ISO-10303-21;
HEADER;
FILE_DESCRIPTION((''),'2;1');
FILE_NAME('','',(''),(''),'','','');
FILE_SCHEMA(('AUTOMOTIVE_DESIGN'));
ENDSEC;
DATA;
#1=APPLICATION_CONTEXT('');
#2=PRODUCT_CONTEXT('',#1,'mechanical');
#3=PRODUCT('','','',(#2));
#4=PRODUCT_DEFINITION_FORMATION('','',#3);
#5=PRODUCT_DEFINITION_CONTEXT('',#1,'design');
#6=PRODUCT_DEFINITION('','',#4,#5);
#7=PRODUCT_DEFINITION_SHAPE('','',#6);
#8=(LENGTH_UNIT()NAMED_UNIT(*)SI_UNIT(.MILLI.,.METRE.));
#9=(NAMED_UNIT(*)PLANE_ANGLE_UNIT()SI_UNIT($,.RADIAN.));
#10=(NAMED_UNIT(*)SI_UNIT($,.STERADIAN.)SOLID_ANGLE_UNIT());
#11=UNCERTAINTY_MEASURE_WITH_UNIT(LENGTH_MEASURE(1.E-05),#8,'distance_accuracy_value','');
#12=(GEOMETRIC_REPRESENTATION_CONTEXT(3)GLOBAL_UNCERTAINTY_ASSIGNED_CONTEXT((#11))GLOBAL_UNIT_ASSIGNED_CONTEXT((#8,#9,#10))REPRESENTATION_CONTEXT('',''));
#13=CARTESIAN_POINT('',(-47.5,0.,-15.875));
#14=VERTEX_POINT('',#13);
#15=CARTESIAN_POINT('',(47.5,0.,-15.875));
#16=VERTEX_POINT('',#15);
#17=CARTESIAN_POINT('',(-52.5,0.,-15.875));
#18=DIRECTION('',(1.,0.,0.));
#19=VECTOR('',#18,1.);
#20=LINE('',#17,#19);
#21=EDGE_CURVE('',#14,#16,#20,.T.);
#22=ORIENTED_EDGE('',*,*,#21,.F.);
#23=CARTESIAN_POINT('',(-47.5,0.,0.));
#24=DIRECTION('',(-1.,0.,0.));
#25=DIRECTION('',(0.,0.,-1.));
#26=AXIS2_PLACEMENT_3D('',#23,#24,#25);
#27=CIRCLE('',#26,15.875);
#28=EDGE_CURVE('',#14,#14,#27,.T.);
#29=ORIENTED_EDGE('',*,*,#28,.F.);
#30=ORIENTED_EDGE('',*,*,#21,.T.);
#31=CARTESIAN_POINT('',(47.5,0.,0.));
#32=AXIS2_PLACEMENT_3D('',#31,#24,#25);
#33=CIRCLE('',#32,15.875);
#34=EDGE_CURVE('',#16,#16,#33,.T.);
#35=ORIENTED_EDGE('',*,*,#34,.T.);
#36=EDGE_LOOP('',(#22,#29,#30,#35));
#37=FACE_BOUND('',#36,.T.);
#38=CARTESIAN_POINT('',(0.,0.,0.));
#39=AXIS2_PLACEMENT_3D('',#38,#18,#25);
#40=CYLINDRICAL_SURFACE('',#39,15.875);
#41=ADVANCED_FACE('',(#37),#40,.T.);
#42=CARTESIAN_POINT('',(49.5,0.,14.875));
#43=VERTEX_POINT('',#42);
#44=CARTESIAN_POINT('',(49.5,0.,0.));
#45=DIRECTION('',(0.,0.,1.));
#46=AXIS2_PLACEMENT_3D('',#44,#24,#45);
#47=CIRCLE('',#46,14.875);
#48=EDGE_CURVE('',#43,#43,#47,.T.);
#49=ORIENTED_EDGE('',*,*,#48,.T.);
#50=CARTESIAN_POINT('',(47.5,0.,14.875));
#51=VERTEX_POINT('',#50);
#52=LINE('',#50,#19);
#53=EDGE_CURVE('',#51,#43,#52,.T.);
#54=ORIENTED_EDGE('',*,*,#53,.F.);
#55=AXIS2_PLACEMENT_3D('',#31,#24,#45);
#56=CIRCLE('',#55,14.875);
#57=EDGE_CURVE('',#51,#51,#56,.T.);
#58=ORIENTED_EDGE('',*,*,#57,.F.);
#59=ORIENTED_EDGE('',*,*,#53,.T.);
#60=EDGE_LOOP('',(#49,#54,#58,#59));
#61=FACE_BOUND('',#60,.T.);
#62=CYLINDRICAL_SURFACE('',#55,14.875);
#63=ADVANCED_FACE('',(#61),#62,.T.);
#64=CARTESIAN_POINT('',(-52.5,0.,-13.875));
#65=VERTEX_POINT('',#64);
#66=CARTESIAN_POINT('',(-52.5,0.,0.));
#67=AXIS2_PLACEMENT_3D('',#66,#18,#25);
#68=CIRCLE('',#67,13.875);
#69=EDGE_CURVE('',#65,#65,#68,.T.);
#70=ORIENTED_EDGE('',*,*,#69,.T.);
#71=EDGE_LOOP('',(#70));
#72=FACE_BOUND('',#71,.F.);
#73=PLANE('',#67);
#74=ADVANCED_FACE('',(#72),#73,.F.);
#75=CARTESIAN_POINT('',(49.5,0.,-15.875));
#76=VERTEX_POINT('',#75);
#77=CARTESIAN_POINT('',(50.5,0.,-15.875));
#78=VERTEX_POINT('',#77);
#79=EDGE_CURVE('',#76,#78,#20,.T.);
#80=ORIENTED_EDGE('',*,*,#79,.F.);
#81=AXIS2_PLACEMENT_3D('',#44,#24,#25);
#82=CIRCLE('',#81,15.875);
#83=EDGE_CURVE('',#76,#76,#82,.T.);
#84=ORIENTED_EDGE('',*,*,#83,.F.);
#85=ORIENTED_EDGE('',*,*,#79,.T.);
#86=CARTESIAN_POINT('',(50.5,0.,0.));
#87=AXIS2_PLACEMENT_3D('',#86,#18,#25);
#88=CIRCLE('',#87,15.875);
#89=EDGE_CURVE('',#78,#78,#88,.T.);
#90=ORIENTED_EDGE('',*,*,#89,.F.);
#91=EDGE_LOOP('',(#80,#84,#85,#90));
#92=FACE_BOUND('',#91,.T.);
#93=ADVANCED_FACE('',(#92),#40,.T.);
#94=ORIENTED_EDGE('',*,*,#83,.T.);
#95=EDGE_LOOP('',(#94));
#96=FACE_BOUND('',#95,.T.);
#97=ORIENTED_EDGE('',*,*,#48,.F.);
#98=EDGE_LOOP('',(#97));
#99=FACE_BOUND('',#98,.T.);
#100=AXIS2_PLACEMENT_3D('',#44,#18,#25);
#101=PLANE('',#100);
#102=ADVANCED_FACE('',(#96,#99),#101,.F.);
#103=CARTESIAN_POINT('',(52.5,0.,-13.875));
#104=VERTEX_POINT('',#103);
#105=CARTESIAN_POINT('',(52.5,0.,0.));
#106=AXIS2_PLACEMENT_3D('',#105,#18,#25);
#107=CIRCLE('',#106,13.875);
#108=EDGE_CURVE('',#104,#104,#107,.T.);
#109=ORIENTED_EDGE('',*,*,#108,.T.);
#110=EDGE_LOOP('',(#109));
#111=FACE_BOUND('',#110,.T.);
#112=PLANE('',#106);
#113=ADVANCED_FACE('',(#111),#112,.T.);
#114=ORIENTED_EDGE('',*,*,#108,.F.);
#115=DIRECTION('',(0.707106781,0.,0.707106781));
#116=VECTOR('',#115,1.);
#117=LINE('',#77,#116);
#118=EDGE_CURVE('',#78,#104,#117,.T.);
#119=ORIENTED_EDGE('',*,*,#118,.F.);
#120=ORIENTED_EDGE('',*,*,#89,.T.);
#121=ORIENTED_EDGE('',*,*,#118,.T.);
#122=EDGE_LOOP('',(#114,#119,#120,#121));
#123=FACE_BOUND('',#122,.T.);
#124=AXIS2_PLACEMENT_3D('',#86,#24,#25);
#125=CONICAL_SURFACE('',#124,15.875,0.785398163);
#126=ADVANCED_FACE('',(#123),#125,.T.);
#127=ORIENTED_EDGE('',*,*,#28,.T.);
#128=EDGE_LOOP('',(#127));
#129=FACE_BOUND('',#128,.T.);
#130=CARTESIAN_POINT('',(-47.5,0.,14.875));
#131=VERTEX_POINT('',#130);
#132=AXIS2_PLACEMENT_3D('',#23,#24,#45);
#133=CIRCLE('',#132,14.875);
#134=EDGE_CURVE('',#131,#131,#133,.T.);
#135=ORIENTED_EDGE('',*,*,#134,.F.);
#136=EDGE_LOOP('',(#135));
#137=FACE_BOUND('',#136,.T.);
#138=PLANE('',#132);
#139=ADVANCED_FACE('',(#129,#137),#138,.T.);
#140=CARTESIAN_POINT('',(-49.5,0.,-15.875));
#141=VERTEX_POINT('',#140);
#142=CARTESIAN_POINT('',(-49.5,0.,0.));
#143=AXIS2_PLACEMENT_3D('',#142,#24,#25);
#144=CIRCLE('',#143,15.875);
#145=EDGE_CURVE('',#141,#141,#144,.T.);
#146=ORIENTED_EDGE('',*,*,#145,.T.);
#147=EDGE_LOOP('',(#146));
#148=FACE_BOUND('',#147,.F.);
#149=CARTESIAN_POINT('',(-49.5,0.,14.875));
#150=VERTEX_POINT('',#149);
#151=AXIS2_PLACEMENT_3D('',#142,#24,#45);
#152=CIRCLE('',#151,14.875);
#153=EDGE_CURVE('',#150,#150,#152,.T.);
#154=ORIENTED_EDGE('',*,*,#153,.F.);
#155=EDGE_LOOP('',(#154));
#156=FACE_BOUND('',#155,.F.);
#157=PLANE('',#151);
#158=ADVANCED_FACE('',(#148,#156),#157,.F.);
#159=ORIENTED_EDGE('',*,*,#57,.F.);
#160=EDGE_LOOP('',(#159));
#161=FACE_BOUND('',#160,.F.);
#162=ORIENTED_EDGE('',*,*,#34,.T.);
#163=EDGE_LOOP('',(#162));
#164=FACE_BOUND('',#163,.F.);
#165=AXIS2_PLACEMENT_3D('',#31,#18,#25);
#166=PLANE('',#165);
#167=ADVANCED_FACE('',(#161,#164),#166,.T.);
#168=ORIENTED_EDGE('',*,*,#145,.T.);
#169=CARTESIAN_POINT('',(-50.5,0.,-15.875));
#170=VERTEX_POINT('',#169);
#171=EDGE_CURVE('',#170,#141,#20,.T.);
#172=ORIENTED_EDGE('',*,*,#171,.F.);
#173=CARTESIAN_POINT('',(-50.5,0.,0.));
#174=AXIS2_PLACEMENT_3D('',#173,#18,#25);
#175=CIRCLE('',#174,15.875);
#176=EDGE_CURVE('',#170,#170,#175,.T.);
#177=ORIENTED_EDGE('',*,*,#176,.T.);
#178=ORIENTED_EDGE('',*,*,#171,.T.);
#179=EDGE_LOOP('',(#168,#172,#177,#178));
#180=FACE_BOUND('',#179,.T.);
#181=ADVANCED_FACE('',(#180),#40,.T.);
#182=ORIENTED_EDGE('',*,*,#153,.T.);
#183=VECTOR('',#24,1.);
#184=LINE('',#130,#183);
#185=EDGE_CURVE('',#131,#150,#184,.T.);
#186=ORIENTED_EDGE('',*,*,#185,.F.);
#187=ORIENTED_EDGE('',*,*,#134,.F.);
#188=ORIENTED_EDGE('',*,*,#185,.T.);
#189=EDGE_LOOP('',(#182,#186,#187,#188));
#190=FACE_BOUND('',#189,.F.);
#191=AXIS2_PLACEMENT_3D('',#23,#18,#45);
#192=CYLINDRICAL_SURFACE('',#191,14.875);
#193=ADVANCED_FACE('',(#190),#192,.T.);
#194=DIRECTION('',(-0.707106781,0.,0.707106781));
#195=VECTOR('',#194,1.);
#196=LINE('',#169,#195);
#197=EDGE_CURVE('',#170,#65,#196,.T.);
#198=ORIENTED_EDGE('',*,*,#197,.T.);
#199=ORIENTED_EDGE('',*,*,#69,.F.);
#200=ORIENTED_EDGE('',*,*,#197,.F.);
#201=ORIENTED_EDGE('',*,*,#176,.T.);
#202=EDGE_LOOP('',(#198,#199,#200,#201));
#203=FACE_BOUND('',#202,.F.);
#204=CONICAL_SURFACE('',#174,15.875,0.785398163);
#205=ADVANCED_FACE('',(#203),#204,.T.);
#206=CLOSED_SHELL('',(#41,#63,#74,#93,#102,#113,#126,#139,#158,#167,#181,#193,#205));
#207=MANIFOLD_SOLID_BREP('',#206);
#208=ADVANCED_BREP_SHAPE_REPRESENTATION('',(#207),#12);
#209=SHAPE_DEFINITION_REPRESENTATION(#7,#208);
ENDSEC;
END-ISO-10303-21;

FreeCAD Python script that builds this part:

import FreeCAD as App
import Part
import Sketcher
from FreeCAD import Vector


def edges_at(feature, points):
    """Names of the edges that pass closest to the given points."""
    edges = feature.Shape.Edges
    near = lambda p: min(range(len(edges)), key=lambda i: edges[i].distToShape(Part.Vertex(*p))[0])
    return sorted({f"Edge{near(p) + 1}" for p in points})

doc = App.newDocument("Part")
body = doc.addObject("PartDesign::Body", "Body")

# Sketch on YZ plane
sketch1 = doc.addObject("Sketcher::SketchObject", "Sketch")
body.addObject(sketch1)
sketch1.AttachmentSupport = (doc.YZ_Plane, [""])
sketch1.MapMode = "FlatFace"
sketch1.addGeometry(Part.Circle(Vector(0, 0, 0), Vector(0, 0, 1), 16), False)
sketch1.addConstraint([
    Sketcher.Constraint("Coincident", 0, 3, -1, 1),
    Sketcher.Constraint("Diameter", 0, 31.75),
])
pad1 = doc.addObject("PartDesign::Pad", "Pad")
body.addObject(pad1)
pad1.Profile = sketch1
pad1.Length = 105
pad1.Midplane = True
doc.recompute()

chamfer = doc.addObject("PartDesign::Chamfer", "Chamfer")
body.addObject(chamfer)
chamfer.Base = (pad1, edges_at(pad1, [(-52.5, 0, 15.875), (52.5, 0, 15.875)]))
chamfer.Size = 2

# Sketch on YZ plane
sketch2 = doc.addObject("Sketcher::SketchObject", "Sketch001")
body.addObject(sketch2)
sketch2.AttachmentSupport = (doc.YZ_Plane, [""])
sketch2.MapMode = "FlatFace"
sketch2.AttachmentOffset = App.Placement(Vector(0, 0, -47.5), App.Rotation())
sketch2.addGeometry([
    Part.Circle(Vector(0, 0, 0), Vector(0, 0, 1), 16),
    Part.Circle(Vector(0, 0, 0), Vector(0, 0, 1), 15),
], False)
sketch2.addConstraint([
    Sketcher.Constraint("Coincident", 0, 3, -1, 1),
    Sketcher.Constraint("Coincident", 1, 3, -1, 1),
    Sketcher.Constraint("Diameter", 0, 31.75),
    Sketcher.Constraint("Diameter", 1, 29.75),
])
pocket1 = doc.addObject("PartDesign::Pocket", "Pocket")
body.addObject(pocket1)
pocket1.Profile = sketch2
pocket1.Length = 2
doc.recompute()

mirrored = doc.addObject("PartDesign::Mirrored", "Mirrored")
body.addObject(mirrored)
mirrored.Originals = [pocket1]
mirrored.MirrorPlane = (doc.YZ_Plane, [""])
body.Tip = mirrored

doc.recompute()
